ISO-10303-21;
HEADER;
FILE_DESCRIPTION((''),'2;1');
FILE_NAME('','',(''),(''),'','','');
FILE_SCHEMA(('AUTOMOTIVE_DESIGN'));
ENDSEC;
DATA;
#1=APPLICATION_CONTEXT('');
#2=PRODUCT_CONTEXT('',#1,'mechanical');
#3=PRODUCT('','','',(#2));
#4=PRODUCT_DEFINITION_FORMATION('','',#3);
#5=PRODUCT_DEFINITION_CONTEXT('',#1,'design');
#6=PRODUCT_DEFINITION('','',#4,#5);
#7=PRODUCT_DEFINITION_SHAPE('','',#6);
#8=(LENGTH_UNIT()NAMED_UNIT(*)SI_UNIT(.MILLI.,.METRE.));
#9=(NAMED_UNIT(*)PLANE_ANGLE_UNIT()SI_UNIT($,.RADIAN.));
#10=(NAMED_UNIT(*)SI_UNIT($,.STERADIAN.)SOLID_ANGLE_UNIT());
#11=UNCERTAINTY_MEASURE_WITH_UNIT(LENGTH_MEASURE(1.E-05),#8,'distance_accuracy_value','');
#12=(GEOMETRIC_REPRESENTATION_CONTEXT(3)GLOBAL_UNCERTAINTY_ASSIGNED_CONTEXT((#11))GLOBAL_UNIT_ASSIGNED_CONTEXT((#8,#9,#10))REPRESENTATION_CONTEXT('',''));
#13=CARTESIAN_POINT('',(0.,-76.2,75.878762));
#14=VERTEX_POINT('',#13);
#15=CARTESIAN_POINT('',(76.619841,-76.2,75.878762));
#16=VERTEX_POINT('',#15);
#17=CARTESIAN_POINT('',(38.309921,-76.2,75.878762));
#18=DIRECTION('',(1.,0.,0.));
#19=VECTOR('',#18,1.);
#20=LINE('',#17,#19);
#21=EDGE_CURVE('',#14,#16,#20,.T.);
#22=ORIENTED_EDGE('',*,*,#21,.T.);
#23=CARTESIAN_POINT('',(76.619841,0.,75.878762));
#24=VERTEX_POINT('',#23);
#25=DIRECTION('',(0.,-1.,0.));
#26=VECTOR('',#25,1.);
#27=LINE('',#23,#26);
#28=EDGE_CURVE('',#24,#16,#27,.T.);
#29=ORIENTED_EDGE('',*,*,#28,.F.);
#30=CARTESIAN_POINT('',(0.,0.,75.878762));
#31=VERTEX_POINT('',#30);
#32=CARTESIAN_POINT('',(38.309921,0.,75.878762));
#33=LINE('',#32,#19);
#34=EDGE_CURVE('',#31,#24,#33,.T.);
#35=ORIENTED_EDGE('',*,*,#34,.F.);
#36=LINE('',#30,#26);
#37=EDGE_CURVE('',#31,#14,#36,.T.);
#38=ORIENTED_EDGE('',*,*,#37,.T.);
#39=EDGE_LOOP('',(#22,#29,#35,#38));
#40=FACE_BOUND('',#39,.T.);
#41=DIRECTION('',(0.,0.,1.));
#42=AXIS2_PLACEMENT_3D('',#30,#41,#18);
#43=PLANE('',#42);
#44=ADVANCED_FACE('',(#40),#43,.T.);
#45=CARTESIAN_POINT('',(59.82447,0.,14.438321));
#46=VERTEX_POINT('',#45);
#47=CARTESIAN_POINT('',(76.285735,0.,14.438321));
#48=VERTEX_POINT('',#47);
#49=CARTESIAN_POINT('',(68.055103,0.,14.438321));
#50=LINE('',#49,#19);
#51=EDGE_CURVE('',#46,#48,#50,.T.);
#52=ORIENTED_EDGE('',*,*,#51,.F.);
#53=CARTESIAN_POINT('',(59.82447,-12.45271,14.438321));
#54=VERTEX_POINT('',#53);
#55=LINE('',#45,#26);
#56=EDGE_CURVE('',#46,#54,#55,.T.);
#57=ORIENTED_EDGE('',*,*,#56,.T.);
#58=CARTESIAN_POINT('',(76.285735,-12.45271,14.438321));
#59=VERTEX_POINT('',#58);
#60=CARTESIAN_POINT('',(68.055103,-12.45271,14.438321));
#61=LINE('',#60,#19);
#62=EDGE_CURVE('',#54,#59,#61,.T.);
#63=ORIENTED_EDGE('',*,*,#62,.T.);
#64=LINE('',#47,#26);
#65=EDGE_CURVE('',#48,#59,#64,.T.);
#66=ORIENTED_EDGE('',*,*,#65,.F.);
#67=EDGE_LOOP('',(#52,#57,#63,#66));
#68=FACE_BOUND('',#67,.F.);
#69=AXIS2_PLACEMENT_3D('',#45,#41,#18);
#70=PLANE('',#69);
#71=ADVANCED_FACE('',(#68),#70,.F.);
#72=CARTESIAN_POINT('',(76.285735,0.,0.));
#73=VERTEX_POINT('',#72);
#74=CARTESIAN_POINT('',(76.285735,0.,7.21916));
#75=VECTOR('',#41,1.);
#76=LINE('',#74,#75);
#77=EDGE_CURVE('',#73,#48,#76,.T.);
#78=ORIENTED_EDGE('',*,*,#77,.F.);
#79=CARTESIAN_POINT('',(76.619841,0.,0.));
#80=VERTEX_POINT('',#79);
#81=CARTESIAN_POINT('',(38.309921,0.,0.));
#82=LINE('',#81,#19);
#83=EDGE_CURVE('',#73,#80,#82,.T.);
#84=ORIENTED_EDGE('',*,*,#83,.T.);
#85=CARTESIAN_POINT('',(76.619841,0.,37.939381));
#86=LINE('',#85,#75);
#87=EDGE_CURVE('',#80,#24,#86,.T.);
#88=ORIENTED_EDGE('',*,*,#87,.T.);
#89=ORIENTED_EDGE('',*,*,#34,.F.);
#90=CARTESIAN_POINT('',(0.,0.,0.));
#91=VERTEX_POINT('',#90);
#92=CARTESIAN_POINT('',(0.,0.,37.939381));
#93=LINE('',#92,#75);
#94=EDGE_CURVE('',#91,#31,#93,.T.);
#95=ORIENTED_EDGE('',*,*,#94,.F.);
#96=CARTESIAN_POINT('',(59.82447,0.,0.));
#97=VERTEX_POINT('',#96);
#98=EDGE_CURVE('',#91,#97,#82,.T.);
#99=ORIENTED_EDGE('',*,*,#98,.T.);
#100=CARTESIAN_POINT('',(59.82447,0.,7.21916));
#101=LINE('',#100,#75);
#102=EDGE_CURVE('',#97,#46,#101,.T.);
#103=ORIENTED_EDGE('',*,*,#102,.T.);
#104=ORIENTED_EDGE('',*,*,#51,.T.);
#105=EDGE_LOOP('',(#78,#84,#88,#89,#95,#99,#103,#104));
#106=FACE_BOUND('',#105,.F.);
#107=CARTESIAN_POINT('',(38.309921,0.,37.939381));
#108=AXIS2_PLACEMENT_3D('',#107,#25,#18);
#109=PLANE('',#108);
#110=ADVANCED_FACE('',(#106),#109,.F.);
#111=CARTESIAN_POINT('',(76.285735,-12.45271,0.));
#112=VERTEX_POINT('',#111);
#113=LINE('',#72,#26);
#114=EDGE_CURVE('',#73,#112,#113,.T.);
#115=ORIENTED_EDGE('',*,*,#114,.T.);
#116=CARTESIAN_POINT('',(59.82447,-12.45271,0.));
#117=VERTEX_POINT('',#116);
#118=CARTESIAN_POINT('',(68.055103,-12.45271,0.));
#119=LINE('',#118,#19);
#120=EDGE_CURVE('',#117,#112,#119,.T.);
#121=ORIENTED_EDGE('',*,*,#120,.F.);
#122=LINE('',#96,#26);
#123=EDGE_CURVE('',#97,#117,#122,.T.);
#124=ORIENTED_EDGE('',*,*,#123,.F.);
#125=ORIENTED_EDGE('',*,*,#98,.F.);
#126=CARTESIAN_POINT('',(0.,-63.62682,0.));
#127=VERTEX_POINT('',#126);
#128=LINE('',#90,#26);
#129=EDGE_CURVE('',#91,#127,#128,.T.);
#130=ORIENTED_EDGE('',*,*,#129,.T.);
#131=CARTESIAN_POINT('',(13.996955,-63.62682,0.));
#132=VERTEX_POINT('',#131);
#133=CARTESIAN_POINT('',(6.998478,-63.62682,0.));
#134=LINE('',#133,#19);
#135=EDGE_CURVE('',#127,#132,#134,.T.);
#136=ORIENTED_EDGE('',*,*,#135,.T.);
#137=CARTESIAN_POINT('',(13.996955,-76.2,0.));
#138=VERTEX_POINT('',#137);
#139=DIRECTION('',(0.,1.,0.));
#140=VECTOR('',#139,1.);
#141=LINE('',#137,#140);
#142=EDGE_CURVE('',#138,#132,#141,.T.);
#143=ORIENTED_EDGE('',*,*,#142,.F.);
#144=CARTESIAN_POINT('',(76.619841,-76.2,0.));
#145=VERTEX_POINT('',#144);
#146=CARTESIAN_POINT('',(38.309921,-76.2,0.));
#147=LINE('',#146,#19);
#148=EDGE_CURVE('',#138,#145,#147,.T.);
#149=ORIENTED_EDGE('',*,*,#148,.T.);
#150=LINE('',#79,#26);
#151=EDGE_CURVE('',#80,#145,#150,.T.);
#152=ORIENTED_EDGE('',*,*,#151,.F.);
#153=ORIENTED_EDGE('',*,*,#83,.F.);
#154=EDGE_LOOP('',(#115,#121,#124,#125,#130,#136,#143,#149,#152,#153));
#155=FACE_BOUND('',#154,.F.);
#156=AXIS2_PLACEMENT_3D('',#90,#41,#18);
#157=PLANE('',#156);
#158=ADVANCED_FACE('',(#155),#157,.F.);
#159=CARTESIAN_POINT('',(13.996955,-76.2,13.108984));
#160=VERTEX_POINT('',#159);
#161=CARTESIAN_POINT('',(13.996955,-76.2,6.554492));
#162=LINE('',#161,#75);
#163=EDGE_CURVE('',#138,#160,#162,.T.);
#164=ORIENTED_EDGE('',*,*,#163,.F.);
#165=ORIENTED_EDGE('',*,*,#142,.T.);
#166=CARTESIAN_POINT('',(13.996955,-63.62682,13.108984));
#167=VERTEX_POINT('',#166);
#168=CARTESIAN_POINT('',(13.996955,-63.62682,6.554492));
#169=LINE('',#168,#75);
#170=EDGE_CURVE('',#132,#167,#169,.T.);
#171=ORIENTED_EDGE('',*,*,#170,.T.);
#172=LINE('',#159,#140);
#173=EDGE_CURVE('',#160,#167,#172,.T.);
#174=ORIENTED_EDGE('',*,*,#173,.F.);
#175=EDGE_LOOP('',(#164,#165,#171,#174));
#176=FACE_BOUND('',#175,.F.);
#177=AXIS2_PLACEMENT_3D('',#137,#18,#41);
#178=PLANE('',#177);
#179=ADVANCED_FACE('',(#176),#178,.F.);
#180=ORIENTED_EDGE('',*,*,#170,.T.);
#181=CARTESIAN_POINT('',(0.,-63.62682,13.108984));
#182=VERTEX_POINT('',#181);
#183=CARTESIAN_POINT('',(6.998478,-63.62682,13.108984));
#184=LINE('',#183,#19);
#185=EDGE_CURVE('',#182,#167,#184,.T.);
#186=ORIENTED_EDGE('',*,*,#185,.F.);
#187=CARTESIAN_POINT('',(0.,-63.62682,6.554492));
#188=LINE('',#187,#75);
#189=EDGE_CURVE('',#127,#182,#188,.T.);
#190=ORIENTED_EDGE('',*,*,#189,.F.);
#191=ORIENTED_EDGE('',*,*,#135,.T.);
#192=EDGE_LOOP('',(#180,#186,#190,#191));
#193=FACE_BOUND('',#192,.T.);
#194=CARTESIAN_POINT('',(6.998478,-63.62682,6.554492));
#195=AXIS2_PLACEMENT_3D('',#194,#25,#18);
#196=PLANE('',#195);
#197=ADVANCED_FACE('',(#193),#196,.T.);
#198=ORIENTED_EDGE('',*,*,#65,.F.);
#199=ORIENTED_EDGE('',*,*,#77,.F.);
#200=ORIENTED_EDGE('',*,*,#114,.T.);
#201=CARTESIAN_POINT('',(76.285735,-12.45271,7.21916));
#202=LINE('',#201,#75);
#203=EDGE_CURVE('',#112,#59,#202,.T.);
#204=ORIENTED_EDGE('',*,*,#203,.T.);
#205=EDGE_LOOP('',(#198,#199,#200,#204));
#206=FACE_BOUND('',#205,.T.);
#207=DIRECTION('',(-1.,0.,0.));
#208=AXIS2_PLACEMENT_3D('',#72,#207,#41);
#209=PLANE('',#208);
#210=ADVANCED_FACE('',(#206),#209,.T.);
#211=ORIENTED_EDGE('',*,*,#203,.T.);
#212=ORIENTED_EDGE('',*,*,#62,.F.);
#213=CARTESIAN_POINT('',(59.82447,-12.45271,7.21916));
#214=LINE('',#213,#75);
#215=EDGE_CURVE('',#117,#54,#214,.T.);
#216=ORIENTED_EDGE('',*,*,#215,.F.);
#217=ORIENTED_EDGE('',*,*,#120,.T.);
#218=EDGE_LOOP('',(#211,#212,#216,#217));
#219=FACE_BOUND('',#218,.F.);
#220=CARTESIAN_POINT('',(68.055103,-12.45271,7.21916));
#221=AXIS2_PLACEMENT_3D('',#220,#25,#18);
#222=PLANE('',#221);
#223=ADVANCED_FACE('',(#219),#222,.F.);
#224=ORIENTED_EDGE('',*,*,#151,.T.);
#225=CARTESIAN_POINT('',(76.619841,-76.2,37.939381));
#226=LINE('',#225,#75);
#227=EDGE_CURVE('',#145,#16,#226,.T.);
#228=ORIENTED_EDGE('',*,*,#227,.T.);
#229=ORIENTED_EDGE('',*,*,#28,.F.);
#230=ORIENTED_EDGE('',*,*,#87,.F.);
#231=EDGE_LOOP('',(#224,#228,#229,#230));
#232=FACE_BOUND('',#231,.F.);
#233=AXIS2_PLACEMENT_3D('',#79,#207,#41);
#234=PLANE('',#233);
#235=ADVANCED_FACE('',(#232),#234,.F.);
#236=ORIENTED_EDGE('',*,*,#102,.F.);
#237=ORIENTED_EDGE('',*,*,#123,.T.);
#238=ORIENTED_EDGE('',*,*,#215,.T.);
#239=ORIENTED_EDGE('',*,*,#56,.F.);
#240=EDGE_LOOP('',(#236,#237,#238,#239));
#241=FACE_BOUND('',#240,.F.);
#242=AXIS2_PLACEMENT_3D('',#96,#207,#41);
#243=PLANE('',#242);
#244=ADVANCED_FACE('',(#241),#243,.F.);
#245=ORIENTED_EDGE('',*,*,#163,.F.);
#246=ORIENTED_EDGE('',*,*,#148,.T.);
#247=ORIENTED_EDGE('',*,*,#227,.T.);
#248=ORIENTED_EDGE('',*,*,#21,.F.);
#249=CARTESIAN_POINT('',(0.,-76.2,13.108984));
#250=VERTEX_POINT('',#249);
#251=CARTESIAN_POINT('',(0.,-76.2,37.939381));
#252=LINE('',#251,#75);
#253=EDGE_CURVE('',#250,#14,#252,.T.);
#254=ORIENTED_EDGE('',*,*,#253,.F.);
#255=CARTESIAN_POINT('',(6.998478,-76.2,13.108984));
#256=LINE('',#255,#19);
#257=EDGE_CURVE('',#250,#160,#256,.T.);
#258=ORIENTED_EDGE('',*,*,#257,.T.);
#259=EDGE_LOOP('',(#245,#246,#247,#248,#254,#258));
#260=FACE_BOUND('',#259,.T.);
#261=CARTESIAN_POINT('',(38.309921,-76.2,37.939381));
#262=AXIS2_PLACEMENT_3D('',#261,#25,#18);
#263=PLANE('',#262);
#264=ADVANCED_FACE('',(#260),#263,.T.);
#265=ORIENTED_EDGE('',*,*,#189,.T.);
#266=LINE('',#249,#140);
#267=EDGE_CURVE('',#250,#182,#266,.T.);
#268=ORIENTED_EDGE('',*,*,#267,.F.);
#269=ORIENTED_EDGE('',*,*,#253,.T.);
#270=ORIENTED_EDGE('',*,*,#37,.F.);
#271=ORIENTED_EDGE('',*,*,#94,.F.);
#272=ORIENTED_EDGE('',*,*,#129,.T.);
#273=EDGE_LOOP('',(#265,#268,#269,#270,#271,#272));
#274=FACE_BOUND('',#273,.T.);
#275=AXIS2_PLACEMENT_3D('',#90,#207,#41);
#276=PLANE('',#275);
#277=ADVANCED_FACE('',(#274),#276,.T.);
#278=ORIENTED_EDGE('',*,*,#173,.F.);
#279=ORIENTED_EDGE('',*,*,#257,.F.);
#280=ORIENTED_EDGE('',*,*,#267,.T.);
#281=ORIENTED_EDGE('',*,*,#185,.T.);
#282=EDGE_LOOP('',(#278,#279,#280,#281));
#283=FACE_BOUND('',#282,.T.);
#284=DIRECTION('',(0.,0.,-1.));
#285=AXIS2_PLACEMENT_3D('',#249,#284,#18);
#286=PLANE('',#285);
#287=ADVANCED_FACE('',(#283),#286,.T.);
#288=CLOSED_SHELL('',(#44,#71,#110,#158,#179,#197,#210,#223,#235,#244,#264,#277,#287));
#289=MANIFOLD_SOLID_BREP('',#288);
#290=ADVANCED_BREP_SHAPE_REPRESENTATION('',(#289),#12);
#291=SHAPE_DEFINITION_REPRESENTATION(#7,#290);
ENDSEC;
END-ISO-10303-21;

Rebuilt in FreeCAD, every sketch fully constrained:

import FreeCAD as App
import Part
import Sketcher
from FreeCAD import Vector


def add_polygon(sketch, points):
    """Adds a closed chain of lines whose ends are joined by coincident constraints."""
    first, n = sketch.GeometryCount, len(points)
    for a, b in zip(points, points[1:] + points[:1]):
        sketch.addGeometry(Part.LineSegment(App.Vector(*a, 0), App.Vector(*b, 0)), False)
    for i in range(n):
        sketch.addConstraint(Sketcher.Constraint("Coincident", first + i, 2, first + (i + 1) % n, 1))

doc = App.newDocument("Part")
params = doc.addObject("Spreadsheet::Sheet", "Params")
for row, (alias, value) in enumerate([
    ("pad1_length", "3 in"),
    ("pocket1_length", "12.57318 mm"),
    ("pocket2_length", "12.45271 mm"),
], start=1):
    params.set(f"A{row}", alias)
    params.set(f"B{row}", "=" + value)
    params.setAlias(f"B{row}", alias)

body = doc.addObject("PartDesign::Body", "Body")

# Sketch on XZ plane
sketch1 = doc.addObject("Sketcher::SketchObject", "Sketch")
body.addObject(sketch1)
sketch1.AttachmentSupport = (doc.XZ_Plane, [""])
sketch1.MapMode = "FlatFace"
add_polygon(sketch1, [(0, 75.878762), (0, 0), (76.619841, 0), (76.619841, 75.878762)])  # lines 0-3
sketch1.addConstraint(Sketcher.Constraint("Vertical", 0))
sketch1.addConstraint(Sketcher.Constraint("Horizontal", 1))
sketch1.addConstraint(Sketcher.Constraint("Vertical", 2))
sketch1.addConstraint(Sketcher.Constraint("Horizontal", 3))
sketch1.addConstraint(Sketcher.Constraint("Coincident", 0, 2, -1, 1))
sketch1.addConstraint(Sketcher.Constraint("DistanceX", 1, 1, 1, 2, 76.619841))
sketch1.addConstraint(Sketcher.Constraint("DistanceY", 0, 2, 0, 1, 75.878762))
pad1 = doc.addObject("PartDesign::Pad", "Pad")
body.addObject(pad1)
pad1.Profile = sketch1
pad1.setExpression("Length", "Params.pad1_length")

# Sketch on XZ plane
sketch2 = doc.addObject("Sketcher::SketchObject", "Sketch001")
body.addObject(sketch2)
sketch2.AttachmentSupport = (doc.XZ_Plane, [""])
sketch2.MapMode = "FlatFace"
sketch2.AttachmentOffset = App.Placement(Vector(0, 0, 3 * 25.4), App.Rotation())
add_polygon(sketch2, [(0, 13.108984), (0, 0), (13.996955, 0), (13.996955, 13.108984)])  # lines 0-3
sketch2.addConstraint(Sketcher.Constraint("Vertical", 0))
sketch2.addConstraint(Sketcher.Constraint("Horizontal", 1))
sketch2.addConstraint(Sketcher.Constraint("Vertical", 2))
sketch2.addConstraint(Sketcher.Constraint("Horizontal", 3))
sketch2.addConstraint(Sketcher.Constraint("Coincident", 0, 2, -1, 1))
sketch2.addConstraint(Sketcher.Constraint("DistanceX", 1, 1, 1, 2, 13.996955))
sketch2.addConstraint(Sketcher.Constraint("DistanceY", 0, 2, 0, 1, 13.108984))
pocket1 = doc.addObject("PartDesign::Pocket", "Pocket")
body.addObject(pocket1)
pocket1.Profile = sketch2
pocket1.setExpression("Length", "Params.pocket1_length")

# Sketch on XZ plane
sketch3 = doc.addObject("Sketcher::SketchObject", "Sketch002")
body.addObject(sketch3)
sketch3.AttachmentSupport = (doc.XZ_Plane, [""])
sketch3.MapMode = "FlatFace"
add_polygon(sketch3, [(59.82447, 14.438321), (59.82447, 0), (76.285735, 0), (76.285735, 14.438321)])  # lines 0-3
sketch3.addConstraint(Sketcher.Constraint("Vertical", 0))
sketch3.addConstraint(Sketcher.Constraint("Horizontal", 1))
sketch3.addConstraint(Sketcher.Constraint("Vertical", 2))
sketch3.addConstraint(Sketcher.Constraint("Horizontal", 3))
sketch3.addConstraint(Sketcher.Constraint("PointOnObject", 0, 2, -1))
sketch3.addConstraint(Sketcher.Constraint("DistanceY", 0, 2, 0, 1, 14.438321))
sketch3.addConstraint(Sketcher.Constraint("DistanceX", 1, 1, 1, 2, 16.461264))
sketch3.addConstraint(Sketcher.Constraint("DistanceX", -1, 1, 0, 2, 59.82447))
pocket2 = doc.addObject("PartDesign::Pocket", "Pocket001")
body.addObject(pocket2)
pocket2.Profile = sketch3
pocket2.setExpression("Length", "Params.pocket2_length")
pocket2.Reversed = True

doc.recompute()
